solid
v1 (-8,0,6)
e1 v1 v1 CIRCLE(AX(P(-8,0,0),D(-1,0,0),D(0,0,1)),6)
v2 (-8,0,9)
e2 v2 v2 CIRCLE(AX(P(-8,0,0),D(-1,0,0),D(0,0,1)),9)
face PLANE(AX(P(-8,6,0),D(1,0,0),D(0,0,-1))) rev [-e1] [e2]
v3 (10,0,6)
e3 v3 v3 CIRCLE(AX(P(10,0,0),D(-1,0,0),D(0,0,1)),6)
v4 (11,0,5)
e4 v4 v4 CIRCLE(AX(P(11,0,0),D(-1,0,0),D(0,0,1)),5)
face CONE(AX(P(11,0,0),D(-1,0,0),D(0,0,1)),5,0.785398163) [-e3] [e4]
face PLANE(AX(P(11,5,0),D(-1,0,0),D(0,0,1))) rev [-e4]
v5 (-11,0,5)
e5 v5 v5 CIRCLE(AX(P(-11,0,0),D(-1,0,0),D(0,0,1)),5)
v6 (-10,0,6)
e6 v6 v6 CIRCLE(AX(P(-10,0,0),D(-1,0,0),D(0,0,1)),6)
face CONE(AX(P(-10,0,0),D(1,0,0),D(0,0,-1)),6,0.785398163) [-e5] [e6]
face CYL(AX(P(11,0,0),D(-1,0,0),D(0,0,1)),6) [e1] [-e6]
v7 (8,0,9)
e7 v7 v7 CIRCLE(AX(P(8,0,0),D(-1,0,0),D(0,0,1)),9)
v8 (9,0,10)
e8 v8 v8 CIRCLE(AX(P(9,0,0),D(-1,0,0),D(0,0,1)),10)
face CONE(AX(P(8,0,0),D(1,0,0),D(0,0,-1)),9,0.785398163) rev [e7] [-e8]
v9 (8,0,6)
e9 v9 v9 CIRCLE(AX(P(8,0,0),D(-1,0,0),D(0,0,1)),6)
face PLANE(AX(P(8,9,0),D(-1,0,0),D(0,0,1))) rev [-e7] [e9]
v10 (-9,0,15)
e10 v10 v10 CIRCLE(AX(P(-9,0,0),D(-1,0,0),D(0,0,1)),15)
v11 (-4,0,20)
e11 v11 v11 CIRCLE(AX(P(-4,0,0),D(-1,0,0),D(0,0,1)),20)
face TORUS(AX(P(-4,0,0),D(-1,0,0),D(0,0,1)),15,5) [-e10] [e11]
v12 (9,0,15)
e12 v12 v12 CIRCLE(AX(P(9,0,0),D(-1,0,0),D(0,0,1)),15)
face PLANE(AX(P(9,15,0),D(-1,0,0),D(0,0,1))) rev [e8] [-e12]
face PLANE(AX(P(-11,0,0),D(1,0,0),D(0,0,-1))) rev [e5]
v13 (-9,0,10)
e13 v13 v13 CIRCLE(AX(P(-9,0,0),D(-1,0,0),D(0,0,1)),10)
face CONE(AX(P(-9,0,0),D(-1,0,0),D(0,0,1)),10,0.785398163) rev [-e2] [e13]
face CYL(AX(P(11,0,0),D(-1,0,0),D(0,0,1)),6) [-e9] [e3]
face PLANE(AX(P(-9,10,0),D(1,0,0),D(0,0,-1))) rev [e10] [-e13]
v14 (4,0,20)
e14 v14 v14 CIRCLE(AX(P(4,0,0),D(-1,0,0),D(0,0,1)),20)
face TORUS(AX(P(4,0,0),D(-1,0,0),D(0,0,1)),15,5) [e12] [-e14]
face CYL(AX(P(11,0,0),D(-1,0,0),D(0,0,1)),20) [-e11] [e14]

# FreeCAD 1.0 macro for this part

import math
import FreeCAD as App
import Part
import Sketcher

V = App.Vector
Q = App.Units.Quantity

doc = App.newDocument("Part")
params = doc.addObject("Spreadsheet::Sheet", "Params")
for row, (alias, value) in enumerate([
    ("sketch1_radius", "5 mm"),
    ("sketch1_width", "22 mm"),
    ("sketch1_width2", "2 mm"),
    ("sketch1_height", "5 mm"),
    ("sketch1_height2", "3 mm"),
    ("revolution_angle", "360 deg"),
], start=1):
    params.set(f"A{row}", alias)
    params.set(f"B{row}", "=" + value)
    params.setAlias(f"B{row}", alias)

body = doc.addObject("PartDesign::Body", "Body")

# Sketch on XY plane
sketch1 = doc.addObject("Sketcher::SketchObject", "Sketch")
body.addObject(sketch1)
sketch1.AttachmentSupport = (doc.XY_Plane, [""])
sketch1.MapMode = "FlatFace"
sketch1.addGeometry([
    Part.LineSegment(V(-11, 5, 0), V(-11, 0, 0)),  # 0
    Part.LineSegment(V(-11, 0, 0), V(11, 0, 0)),  # 1
    Part.LineSegment(V(11, 0, 0), V(11, 5, 0)),  # 2
    Part.LineSegment(V(11, 5, 0), V(10, 6, 0)),  # 3
    Part.LineSegment(V(10, 6, 0), V(8, 6, 0)),  # 4
    Part.LineSegment(V(8, 6, 0), V(8, 9, 0)),  # 5
    Part.LineSegment(V(8, 9, 0), V(9, 10, 0)),  # 6
    Part.LineSegment(V(9, 10, 0), V(9, 15, 0)),  # 7
    Part.ArcOfCircle(Part.Circle(V(4, 15, 0), V(0, 0, 1), 5), math.radians(0), math.radians(90)),  # 8
    Part.LineSegment(V(4, 20, 0), V(-4, 20, 0)),  # 9
    Part.ArcOfCircle(Part.Circle(V(-4, 15, 0), V(0, 0, 1), 5), math.radians(90), math.radians(180)),  # 10
    Part.LineSegment(V(-9, 15, 0), V(-9, 10, 0)),  # 11
    Part.LineSegment(V(-9, 10, 0), V(-8, 9, 0)),  # 12
    Part.LineSegment(V(-8, 9, 0), V(-8, 6, 0)),  # 13
    Part.LineSegment(V(-8, 6, 0), V(-10, 6, 0)),  # 14
    Part.LineSegment(V(-10, 6, 0), V(-11, 5, 0)),  # 15
], False)
sketch1.addConstraint([
    Sketcher.Constraint("Coincident", 0, 2, 1, 1),
    Sketcher.Constraint("Coincident", 1, 2, 2, 1),
    Sketcher.Constraint("Coincident", 2, 2, 3, 1),
    Sketcher.Constraint("Coincident", 3, 2, 4, 1),
    Sketcher.Constraint("Coincident", 4, 2, 5, 1),
    Sketcher.Constraint("Coincident", 5, 2, 6, 1),
    Sketcher.Constraint("Coincident", 6, 2, 7, 1),
    Sketcher.Constraint("Tangent", 7, 2, 8, 1),
    Sketcher.Constraint("Tangent", 8, 2, 9, 1),
    Sketcher.Constraint("Tangent", 9, 2, 10, 1),
    Sketcher.Constraint("Tangent", 10, 2, 11, 1),
    Sketcher.Constraint("Coincident", 11, 2, 12, 1),
    Sketcher.Constraint("Coincident", 12, 2, 13, 1),
    Sketcher.Constraint("Coincident", 13, 2, 14, 1),
    Sketcher.Constraint("Coincident", 14, 2, 15, 1),
    Sketcher.Constraint("Coincident", 15, 2, 0, 1),
    Sketcher.Constraint("Vertical", 0),
    Sketcher.Constraint("Horizontal", 1),
    Sketcher.Constraint("Vertical", 2),
    Sketcher.Constraint("Horizontal", 4),
    Sketcher.Constraint("Vertical", 5),
    Sketcher.Constraint("Vertical", 7),
    Sketcher.Constraint("Horizontal", 9),
    Sketcher.Constraint("Vertical", 11),
    Sketcher.Constraint("Vertical", 13),
    Sketcher.Constraint("Horizontal", 14),
    Sketcher.Constraint("Equal", 8, 10),
    Sketcher.Constraint("Symmetric", 0, 2, 1, 2, -1, 1),
    Sketcher.Constraint("Symmetric", 6, 2, 11, 2, -2),
    Sketcher.Constraint("Symmetric", 5, 2, 12, 2, -2),
    Sketcher.Constraint("Symmetric", 3, 2, 14, 2, -2),
    Sketcher.Constraint("Perpendicular", 3, 6),
    Sketcher.Constraint("Perpendicular", 6, 12),
    Sketcher.Constraint("Perpendicular", 12, 15),
    Sketcher.Constraint("Equal", 2, 7),
    Sketcher.Constraint("Equal", 3, 6),
    Sketcher.Constraint("Radius", 8, Q("5 mm")),
    Sketcher.Constraint("DistanceX", 1, 1, 1, 2, Q("22 mm")),
    Sketcher.Constraint("DistanceX", 4, 2, 4, 1, Q("2 mm")),
    Sketcher.Constraint("DistanceY", 0, 2, 0, 1, Q("5 mm")),
    Sketcher.Constraint("DistanceY", 5, 1, 5, 2, Q("3 mm")),
    Sketcher.Constraint("DistanceY", -1, 1, 8, 3, Q("15 mm")),
])
sketch1.setExpression("Constraints[36]", "Params.sketch1_radius")
sketch1.setExpression("Constraints[37]", "Params.sketch1_width")
sketch1.setExpression("Constraints[38]", "Params.sketch1_width2")
sketch1.setExpression("Constraints[39]", "Params.sketch1_height")
sketch1.setExpression("Constraints[40]", "Params.sketch1_height2")
revolution = doc.addObject("PartDesign::Revolution", "Revolution")
body.addObject(revolution)
revolution.Profile = sketch1
revolution.ReferenceAxis = (sketch1, ["H_Axis"])
revolution.setExpression("Angle", "Params.revolution_angle")

doc.recompute()
